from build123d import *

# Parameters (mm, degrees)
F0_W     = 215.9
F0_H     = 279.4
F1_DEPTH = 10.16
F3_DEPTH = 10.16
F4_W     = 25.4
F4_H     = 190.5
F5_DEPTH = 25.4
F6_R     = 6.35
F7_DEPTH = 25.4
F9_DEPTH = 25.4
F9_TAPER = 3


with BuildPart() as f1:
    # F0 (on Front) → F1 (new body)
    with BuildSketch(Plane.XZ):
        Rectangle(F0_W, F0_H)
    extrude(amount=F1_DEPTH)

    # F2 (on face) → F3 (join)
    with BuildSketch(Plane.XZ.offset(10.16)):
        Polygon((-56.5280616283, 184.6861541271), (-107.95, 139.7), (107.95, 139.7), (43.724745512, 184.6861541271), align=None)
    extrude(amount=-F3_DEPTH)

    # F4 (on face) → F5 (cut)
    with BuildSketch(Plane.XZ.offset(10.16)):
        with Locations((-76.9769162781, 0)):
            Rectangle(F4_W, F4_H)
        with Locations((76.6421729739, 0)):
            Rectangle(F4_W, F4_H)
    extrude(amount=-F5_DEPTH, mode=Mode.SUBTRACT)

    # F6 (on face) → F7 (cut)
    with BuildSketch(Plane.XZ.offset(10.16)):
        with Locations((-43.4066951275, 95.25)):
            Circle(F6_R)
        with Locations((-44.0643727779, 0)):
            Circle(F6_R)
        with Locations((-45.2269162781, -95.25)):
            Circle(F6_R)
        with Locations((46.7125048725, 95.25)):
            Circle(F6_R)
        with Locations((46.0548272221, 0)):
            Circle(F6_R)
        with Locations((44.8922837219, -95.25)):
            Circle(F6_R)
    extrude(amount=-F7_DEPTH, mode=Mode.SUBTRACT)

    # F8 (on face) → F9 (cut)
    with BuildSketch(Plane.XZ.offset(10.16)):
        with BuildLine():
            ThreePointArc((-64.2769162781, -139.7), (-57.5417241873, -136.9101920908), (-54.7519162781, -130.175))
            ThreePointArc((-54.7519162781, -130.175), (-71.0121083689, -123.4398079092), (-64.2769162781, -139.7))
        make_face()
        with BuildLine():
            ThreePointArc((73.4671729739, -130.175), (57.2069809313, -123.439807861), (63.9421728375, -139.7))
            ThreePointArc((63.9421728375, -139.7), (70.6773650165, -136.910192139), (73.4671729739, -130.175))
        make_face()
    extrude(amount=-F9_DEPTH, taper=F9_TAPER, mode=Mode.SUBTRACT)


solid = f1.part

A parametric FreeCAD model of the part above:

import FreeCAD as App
import Part
import Sketcher
Q = App.Units.Quantity


def add_polygon(sketch, points):
    """Adds a closed chain of lines whose ends are joined by coincident constraints."""
    first, n = sketch.GeometryCount, len(points)
    for a, b in zip(points, points[1:] + points[:1]):
        sketch.addGeometry(Part.LineSegment(App.Vector(*a, 0), App.Vector(*b, 0)), False)
    for i in range(n):
        sketch.addConstraint(Sketcher.Constraint("Coincident", first + i, 2, first + (i + 1) % n, 1))

doc = App.newDocument("Part")
body = doc.addObject("PartDesign::Body", "Body")

# Sketch on XZ plane
sketch1 = body.newObject("Sketcher::SketchObject", "Sketch")
sketch1.AttachmentSupport = (doc.getObject("XZ_Plane"), [""])
sketch1.MapMode = "FlatFace"
add_polygon(sketch1, [(-108, 140), (-108, -140), (108, -140), (108, 140)])  # lines 0-3
sketch1.addConstraint(Sketcher.Constraint("Vertical", 0))
sketch1.addConstraint(Sketcher.Constraint("Horizontal", 1))
sketch1.addConstraint(Sketcher.Constraint("Vertical", 2))
sketch1.addConstraint(Sketcher.Constraint("Horizontal", 3))
sketch1.addConstraint(Sketcher.Constraint("Symmetric", 0, 2, 2, 2, -1, 1))
sketch1.addConstraint(Sketcher.Constraint("DistanceY", 0, 2, 0, 1, Q("11 in")))
sketch1.addConstraint(Sketcher.Constraint("DistanceX", 1, 1, 1, 2, Q("8.5 in")))
pad1 = body.newObject("PartDesign::Pad", "Pad")
pad1.Profile = sketch1
pad1.Length = Q("0.4 in")

# Sketch on XZ plane
sketch2 = body.newObject("Sketcher::SketchObject", "Sketch001")
sketch2.AttachmentSupport = (doc.getObject("XZ_Plane"), [""])
sketch2.MapMode = "FlatFace"
sketch2.AttachmentOffset = App.Placement(App.Vector(0, 0, 0.4 * 25.4), App.Rotation())
add_polygon(sketch2, [(-57, 185), (-108, 140), (108, 140), (44, 185)])  # lines 0-3
sketch2.addConstraint(Sketcher.Constraint("Horizontal", 1))
sketch2.addConstraint(Sketcher.Constraint("Horizontal", 3))
sketch2.addConstraint(Sketcher.Constraint("DistanceX", 1, 1, 1, 2, Q("8.5 in")))
sketch2.addConstraint(Sketcher.Constraint("DistanceY", -1, 1, 0, 2, Q("5.5 in")))
sketch2.addConstraint(Sketcher.Constraint("DistanceX", 0, 2, -1, 1, Q("4.25 in")))
sketch2.addConstraint(Sketcher.Constraint("DistanceX", 3, 2, 3, 1, Q("100.252807 mm")))
sketch2.addConstraint(Sketcher.Constraint("DistanceX", 3, 2, -1, 1, Q("56.528062 mm")))
sketch2.addConstraint(Sketcher.Constraint("Distance", 0, Q("68.322542 mm")))
pad2 = body.newObject("PartDesign::Pad", "Pad001")
pad2.Profile = sketch2
pad2.Length = Q("0.4 in")
pad2.Reversed = True

# Sketch on XZ plane
sketch3 = body.newObject("Sketcher::SketchObject", "Sketch002")
sketch3.AttachmentSupport = (doc.getObject("XZ_Plane"), [""])
sketch3.MapMode = "FlatFace"
sketch3.AttachmentOffset = App.Placement(App.Vector(0, 0, 0.4 * 25.4), App.Rotation())
add_polygon(sketch3, [(-90, 95), (-90, -95), (-64, -95), (-64, 95)])  # lines 0-3
add_polygon(sketch3, [(64, 95), (64, -95), (89, -95), (89, 95)])  # lines 4-7
sketch3.addConstraint(Sketcher.Constraint("Vertical", 0))
sketch3.addConstraint(Sketcher.Constraint("Horizontal", 1))
sketch3.addConstraint(Sketcher.Constraint("Vertical", 2))
sketch3.addConstraint(Sketcher.Constraint("Horizontal", 3))
sketch3.addConstraint(Sketcher.Constraint("Vertical", 4))
sketch3.addConstraint(Sketcher.Constraint("Horizontal", 5))
sketch3.addConstraint(Sketcher.Constraint("Vertical", 6))
sketch3.addConstraint(Sketcher.Constraint("Horizontal", 7))
sketch3.addConstraint(Sketcher.Constraint("Horizontal", 1, 2, 4, 2))
sketch3.addConstraint(Sketcher.Constraint("Horizontal", 3, 2, 6, 2))
sketch3.addConstraint(Sketcher.Constraint("Equal", 3, 5))
sketch3.addConstraint(Sketcher.Constraint("DistanceX", 1, 1, 1, 2, Q("1 in")))
sketch3.addConstraint(Sketcher.Constraint("DistanceY", 0, 2, 0, 1, Q("7.5 in")))
sketch3.addConstraint(Sketcher.Constraint("DistanceY", 0, 2, -1, 1, Q("3.75 in")))
sketch3.addConstraint(Sketcher.Constraint("DistanceX", 1, 2, 4, 2, Q("128.219089 mm")))
sketch3.addConstraint(Sketcher.Constraint("DistanceX", 0, 2, -1, 1, Q("89.676916 mm")))
pocket1 = body.newObject("PartDesign::Pocket", "Pocket")
pocket1.Profile = sketch3
pocket1.Length = Q("1 in")

# Sketch on XZ plane
sketch4 = body.newObject("Sketcher::SketchObject", "Sketch003")
sketch4.AttachmentSupport = (doc.getObject("XZ_Plane"), [""])
sketch4.MapMode = "FlatFace"
sketch4.AttachmentOffset = App.Placement(App.Vector(0, 0, 0.4 * 25.4), App.Rotation())
sketch4.addGeometry(Part.Circle(App.Vector(-43, 95, 0), App.Vector(0, 0, 1), 6), False)
sketch4.addGeometry(Part.Circle(App.Vector(-44, 0, 0), App.Vector(0, 0, 1), 6), False)
sketch4.addGeometry(Part.Circle(App.Vector(-45, -95, 0), App.Vector(0, 0, 1), 6), False)
sketch4.addGeometry(Part.Circle(App.Vector(47, 95, 0), App.Vector(0, 0, 1), 6), False)
sketch4.addGeometry(Part.Circle(App.Vector(46, 0, 0), App.Vector(0, 0, 1), 6), False)
sketch4.addGeometry(Part.Circle(App.Vector(45, -95, 0), App.Vector(0, 0, 1), 6), False)
sketch4.addConstraint(Sketcher.Constraint("Equal", 0, 1))
sketch4.addConstraint(Sketcher.Constraint("Equal", 1, 2))
sketch4.addConstraint(Sketcher.Constraint("Equal", 2, 3))
sketch4.addConstraint(Sketcher.Constraint("Equal", 3, 4))
sketch4.addConstraint(Sketcher.Constraint("Equal", 4, 5))
sketch4.addConstraint(Sketcher.Constraint("PointOnObject", 1, 3, -1))
sketch4.addConstraint(Sketcher.Constraint("PointOnObject", 4, 3, -1))
sketch4.addConstraint(Sketcher.Constraint("Horizontal", 0, 3, 3, 3))
sketch4.addConstraint(Sketcher.Constraint("Horizontal", 2, 3, 5, 3))
sketch4.addConstraint(Sketcher.Constraint("Diameter", 0, Q("0.5 in")))
sketch4.addConstraint(Sketcher.Constraint("DistanceY", 2, 3, 0, 3, Q("7.5 in")))
sketch4.addConstraint(Sketcher.Constraint("DistanceY", -1, 1, 0, 3, Q("3.75 in")))
sketch4.addConstraint(Sketcher.Constraint("DistanceX", 0, 3, 3, 3, Q("3.548 in")))
sketch4.addConstraint(Sketcher.Constraint("DistanceX", 1, 3, 4, 3, Q("3.548 in")))
sketch4.addConstraint(Sketcher.Constraint("DistanceX", 2, 3, 5, 3, Q("3.548 in")))
sketch4.addConstraint(Sketcher.Constraint("DistanceX", 2, 3, 0, 3, Q("1.820221 mm")))
sketch4.addConstraint(Sketcher.Constraint("DistanceX", 0, 3, -1, 1, Q("43.406695 mm")))
sketch4.addConstraint(Sketcher.Constraint("DistanceX", 1, 3, -1, 1, Q("44.064373 mm")))
pocket2 = body.newObject("PartDesign::Pocket", "Pocket001")
pocket2.Profile = sketch4
pocket2.Length = Q("1 in")

# Sketch on XZ plane
sketch5 = body.newObject("Sketcher::SketchObject", "Sketch004")
sketch5.AttachmentSupport = (doc.getObject("XZ_Plane"), [""])
sketch5.MapMode = "FlatFace"
sketch5.AttachmentOffset = App.Placement(App.Vector(0, 0, 0.4 * 25.4), App.Rotation())
sketch5.addGeometry(Part.Circle(App.Vector(-64, -130, 0), App.Vector(0, 0, 1), 10), False)
sketch5.addGeometry(Part.Circle(App.Vector(64, -130, 0), App.Vector(0, 0, 1), 10), False)
sketch5.addConstraint(Sketcher.Constraint("Equal", 0, 1))
sketch5.addConstraint(Sketcher.Constraint("Horizontal", 0, 3, 1, 3))
sketch5.addConstraint(Sketcher.Constraint("Diameter", 0, Q("0.75 in")))
sketch5.addConstraint(Sketcher.Constraint("DistanceY", 0, 3, -1, 1, Q("5.125 in")))
sketch5.addConstraint(Sketcher.Constraint("DistanceX", 0, 3, 1, 3, Q("128.219089 mm")))
sketch5.addConstraint(Sketcher.Constraint("DistanceX", 0, 3, -1, 1, Q("64.276916 mm")))
pocket3 = body.newObject("PartDesign::Pocket", "Pocket002")
pocket3.Profile = sketch5
pocket3.Length = Q("1 in")
pocket3.TaperAngle = -3

doc.recompute()
